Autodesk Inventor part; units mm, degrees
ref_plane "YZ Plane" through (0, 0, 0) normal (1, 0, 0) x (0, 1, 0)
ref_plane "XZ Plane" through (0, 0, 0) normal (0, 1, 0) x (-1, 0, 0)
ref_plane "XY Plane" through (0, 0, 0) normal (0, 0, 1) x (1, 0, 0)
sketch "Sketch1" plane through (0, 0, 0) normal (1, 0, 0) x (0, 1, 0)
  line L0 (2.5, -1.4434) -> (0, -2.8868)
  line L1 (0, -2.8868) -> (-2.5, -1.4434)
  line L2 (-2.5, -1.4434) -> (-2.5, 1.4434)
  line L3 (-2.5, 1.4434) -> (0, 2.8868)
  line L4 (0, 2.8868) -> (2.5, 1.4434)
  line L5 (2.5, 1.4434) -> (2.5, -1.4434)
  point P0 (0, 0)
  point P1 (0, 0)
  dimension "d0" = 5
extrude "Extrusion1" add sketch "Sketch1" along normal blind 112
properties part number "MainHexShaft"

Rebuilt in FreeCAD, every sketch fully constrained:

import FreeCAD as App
import Part
import Sketcher
Q = App.Units.Quantity


def add_polygon(sketch, points):
    """Adds a closed chain of lines whose ends are joined by coincident constraints."""
    first, n = sketch.GeometryCount, len(points)
    for a, b in zip(points, points[1:] + points[:1]):
        sketch.addGeometry(Part.LineSegment(App.Vector(*a, 0), App.Vector(*b, 0)), False)
    for i in range(n):
        sketch.addConstraint(Sketcher.Constraint("Coincident", first + i, 2, first + (i + 1) % n, 1))

doc = App.newDocument("Part")
params = doc.addObject("Spreadsheet::Sheet", "Params")
for row, (alias, value) in enumerate([
    ("pad1_length", "112 mm"),
], start=1):
    params.set(f"A{row}", alias)
    params.set(f"B{row}", "=" + value)
    params.setAlias(f"B{row}", alias)

body = doc.addObject("PartDesign::Body", "Body")

# Sketch on YZ plane
sketch1 = body.newObject("Sketcher::SketchObject", "Sketch")
sketch1.AttachmentSupport = (doc.getObject("YZ_Plane"), [""])
sketch1.MapMode = "FlatFace"
add_polygon(sketch1, [(0, -2.8868), (2.5, -1.4434), (2.5, 1.4434), (0, 2.8868), (-2.5, 1.4434), (-2.5, -1.4434)])  # lines 0-5
sketch1.addConstraint(Sketcher.Constraint("Vertical", 1))
sketch1.addConstraint(Sketcher.Constraint("Vertical", 4))
sketch1.addConstraint(Sketcher.Constraint("Symmetric", 0, 2, 3, 2, -1, 1))
sketch1.addConstraint(Sketcher.Constraint("Symmetric", 2, 2, 5, 2, -1, 1))
sketch1.addConstraint(Sketcher.Constraint("PointOnObject", 2, 2, -2))
sketch1.addConstraint(Sketcher.Constraint("Parallel", 2, 5))
sketch1.addConstraint(Sketcher.Constraint("Horizontal", 1, 2, 3, 2))
sketch1.addConstraint(Sketcher.Constraint("DistanceX", 3, 2, 1, 2, Q("5 mm")))
sketch1.addConstraint(Sketcher.Constraint("Angle", 0, Q("30.0004 deg")))
sketch1.addConstraint(Sketcher.Constraint("DistanceY", 1, 1, 1, 2, Q("2.8868 mm")))
pad1 = body.newObject("PartDesign::Pad", "Pad")
pad1.Profile = sketch1
pad1.setExpression("Length", "Params.pad1_length")

doc.recompute()
